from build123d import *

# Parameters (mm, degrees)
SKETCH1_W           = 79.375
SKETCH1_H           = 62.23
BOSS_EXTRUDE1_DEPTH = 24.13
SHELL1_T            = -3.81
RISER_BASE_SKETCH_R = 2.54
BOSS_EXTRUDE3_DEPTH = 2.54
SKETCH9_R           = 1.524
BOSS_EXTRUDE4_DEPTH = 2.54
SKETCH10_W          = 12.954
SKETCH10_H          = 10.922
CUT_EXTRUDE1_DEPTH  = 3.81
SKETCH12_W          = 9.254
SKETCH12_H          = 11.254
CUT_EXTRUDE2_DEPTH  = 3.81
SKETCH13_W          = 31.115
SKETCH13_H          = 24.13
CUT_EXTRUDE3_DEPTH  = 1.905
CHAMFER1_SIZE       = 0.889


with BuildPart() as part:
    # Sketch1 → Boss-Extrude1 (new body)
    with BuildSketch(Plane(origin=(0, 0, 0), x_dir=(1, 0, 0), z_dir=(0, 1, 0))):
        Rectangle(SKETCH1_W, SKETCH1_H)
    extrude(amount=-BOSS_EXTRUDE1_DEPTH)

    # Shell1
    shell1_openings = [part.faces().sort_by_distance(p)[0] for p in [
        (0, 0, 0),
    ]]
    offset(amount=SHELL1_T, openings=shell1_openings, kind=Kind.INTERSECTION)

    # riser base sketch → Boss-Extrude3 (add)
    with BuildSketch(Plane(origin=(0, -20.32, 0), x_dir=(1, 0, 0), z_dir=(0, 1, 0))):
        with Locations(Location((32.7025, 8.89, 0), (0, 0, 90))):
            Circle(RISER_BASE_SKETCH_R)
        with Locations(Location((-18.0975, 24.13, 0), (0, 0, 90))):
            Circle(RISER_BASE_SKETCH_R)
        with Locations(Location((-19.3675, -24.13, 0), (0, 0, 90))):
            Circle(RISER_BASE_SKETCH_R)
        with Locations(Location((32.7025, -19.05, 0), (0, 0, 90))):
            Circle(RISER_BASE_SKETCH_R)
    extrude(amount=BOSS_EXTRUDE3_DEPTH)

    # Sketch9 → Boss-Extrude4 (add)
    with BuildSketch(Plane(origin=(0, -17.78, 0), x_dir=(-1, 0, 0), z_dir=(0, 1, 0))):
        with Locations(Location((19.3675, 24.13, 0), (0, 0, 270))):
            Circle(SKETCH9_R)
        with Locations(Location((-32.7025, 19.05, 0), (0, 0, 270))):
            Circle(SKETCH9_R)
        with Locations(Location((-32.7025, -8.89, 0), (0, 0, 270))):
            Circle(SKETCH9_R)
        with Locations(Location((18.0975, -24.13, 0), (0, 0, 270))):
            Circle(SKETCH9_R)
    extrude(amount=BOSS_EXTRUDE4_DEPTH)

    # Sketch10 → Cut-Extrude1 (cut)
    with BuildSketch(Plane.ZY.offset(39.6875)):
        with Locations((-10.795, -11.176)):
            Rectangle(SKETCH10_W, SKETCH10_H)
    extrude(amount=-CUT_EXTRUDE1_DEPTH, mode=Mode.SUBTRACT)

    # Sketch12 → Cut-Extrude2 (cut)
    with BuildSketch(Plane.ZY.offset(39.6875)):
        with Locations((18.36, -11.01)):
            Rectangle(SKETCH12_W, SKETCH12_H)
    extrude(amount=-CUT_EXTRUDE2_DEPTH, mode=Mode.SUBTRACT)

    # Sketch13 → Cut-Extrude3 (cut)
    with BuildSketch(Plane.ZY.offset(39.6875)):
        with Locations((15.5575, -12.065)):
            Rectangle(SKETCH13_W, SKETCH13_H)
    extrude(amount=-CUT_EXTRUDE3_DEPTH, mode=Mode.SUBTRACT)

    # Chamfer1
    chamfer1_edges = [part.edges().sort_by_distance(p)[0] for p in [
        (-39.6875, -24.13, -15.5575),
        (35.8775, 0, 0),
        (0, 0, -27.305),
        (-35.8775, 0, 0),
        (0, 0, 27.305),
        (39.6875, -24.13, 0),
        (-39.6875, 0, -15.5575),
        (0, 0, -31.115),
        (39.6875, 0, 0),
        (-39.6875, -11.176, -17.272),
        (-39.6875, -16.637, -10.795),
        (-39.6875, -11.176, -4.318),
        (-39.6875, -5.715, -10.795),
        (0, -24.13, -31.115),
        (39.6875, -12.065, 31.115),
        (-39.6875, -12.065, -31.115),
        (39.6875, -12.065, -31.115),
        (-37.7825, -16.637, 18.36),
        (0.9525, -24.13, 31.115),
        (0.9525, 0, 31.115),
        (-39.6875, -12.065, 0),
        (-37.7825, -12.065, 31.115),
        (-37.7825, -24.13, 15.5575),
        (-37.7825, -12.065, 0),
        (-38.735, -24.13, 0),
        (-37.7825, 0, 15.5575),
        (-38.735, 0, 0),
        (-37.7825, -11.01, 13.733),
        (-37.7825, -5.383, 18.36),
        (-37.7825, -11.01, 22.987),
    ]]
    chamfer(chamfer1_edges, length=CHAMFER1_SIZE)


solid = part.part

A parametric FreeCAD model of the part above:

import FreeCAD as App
import Part
import Sketcher
Q = App.Units.Quantity


def edges_at(feature, points):
    """Names of the edges that pass closest to the given points."""
    edges = feature.Shape.Edges
    near = lambda p: min(range(len(edges)), key=lambda i: edges[i].distToShape(Part.Vertex(*p))[0])
    return sorted({f"Edge{near(p) + 1}" for p in points})


def faces_at(feature, points):
    """Names of the faces that lie closest to the given points."""
    faces = feature.Shape.Faces
    near = lambda p: min(range(len(faces)), key=lambda i: faces[i].distToShape(Part.Vertex(*p))[0])
    return sorted({f"Face{near(p) + 1}" for p in points})

doc = App.newDocument("Part")
body = doc.addObject("PartDesign::Body", "Body")

# Sketch on XZ plane
sketch1 = body.newObject("Sketcher::SketchObject", "Sketch")
sketch1.AttachmentSupport = (doc.getObject("XZ_Plane"), [""])
sketch1.MapMode = "FlatFace"
sketch1.addGeometry(Part.LineSegment(App.Vector(-40, -31, 0), App.Vector(-40, 31, 0)), False)
sketch1.addGeometry(Part.LineSegment(App.Vector(-40, 31, 0), App.Vector(40, 31, 0)), False)
sketch1.addGeometry(Part.LineSegment(App.Vector(40, 31, 0), App.Vector(40, -31, 0)), False)
sketch1.addGeometry(Part.LineSegment(App.Vector(40, -31, 0), App.Vector(-40, -31, 0)), False)
sketch1.addConstraint(Sketcher.Constraint("Coincident", 0, 2, 1, 1))
sketch1.addConstraint(Sketcher.Constraint("Coincident", 1, 2, 2, 1))
sketch1.addConstraint(Sketcher.Constraint("Coincident", 2, 2, 3, 1))
sketch1.addConstraint(Sketcher.Constraint("Coincident", 3, 2, 0, 1))
sketch1.addConstraint(Sketcher.Constraint("Vertical", 0))
sketch1.addConstraint(Sketcher.Constraint("Horizontal", 1))
sketch1.addConstraint(Sketcher.Constraint("Vertical", 2))
sketch1.addConstraint(Sketcher.Constraint("Horizontal", 3))
sketch1.addConstraint(Sketcher.Constraint("Symmetric", 0, 2, 2, 2, -1, 1))
sketch1.addConstraint(Sketcher.Constraint("DistanceY", 0, 1, 0, 2, Q("2.45 in")))
sketch1.addConstraint(Sketcher.Constraint("DistanceX", 1, 1, 1, 2, Q("3.125 in")))
pad1 = body.newObject("PartDesign::Pad", "Pad")
pad1.Profile = sketch1
pad1.Length = Q("0.95 in")
doc.recompute()

thickness = body.newObject("PartDesign::Thickness", "Thickness")
thickness.Base = (pad1, faces_at(pad1, [(0, 0, 0)]))
thickness.Value = Q("0.15 in")
thickness.Reversed = True
thickness.Join = "Intersection"

# Sketch on XZ plane
sketch2 = body.newObject("Sketcher::SketchObject", "Sketch001")
sketch2.AttachmentSupport = (doc.getObject("XZ_Plane"), [""])
sketch2.MapMode = "FlatFace"
sketch2.AttachmentOffset = App.Placement(App.Vector(0, 0, 0.8 * 25.4), App.Rotation())
sketch2.addGeometry(Part.Circle(App.Vector(32.7, -8.9, 0), App.Vector(0, 0, 1), 2.5), False)
sketch2.addGeometry(Part.Circle(App.Vector(-18.1, -24.1, 0), App.Vector(0, 0, 1), 2.5), False)
sketch2.addGeometry(Part.Circle(App.Vector(-19.4, 24.1, 0), App.Vector(0, 0, 1), 2.5), False)
sketch2.addGeometry(Part.Circle(App.Vector(32.7, 19.1, 0), App.Vector(0, 0, 1), 2.5), False)
sketch2.addConstraint(Sketcher.Constraint("Equal", 0, 1))
sketch2.addConstraint(Sketcher.Constraint("Equal", 1, 2))
sketch2.addConstraint(Sketcher.Constraint("Equal", 2, 3))
sketch2.addConstraint(Sketcher.Constraint("Vertical", 0, 3, 3, 3))
sketch2.addConstraint(Sketcher.Constraint("Diameter", 0, Q("0.2 in")))
sketch2.addConstraint(Sketcher.Constraint("DistanceX", 1, 3, 0, 3, Q("2 in")))
sketch2.addConstraint(Sketcher.Constraint("DistanceY", 1, 3, 0, 3, Q("0.6 in")))
sketch2.addConstraint(Sketcher.Constraint("DistanceY", 1, 3, 2, 3, Q("1.9 in")))
sketch2.addConstraint(Sketcher.Constraint("DistanceY", 0, 3, 3, 3, Q("1.1 in")))
sketch2.addConstraint(Sketcher.Constraint("DistanceY", 0, 3, -1, 1, Q("0.35 in")))
sketch2.addConstraint(Sketcher.Constraint("DistanceX", 2, 3, 1, 3, Q("0.05 in")))
sketch2.addConstraint(Sketcher.Constraint("DistanceX", -1, 1, 0, 3, Q("1.2875 in")))
pad2 = body.newObject("PartDesign::Pad", "Pad001")
pad2.Profile = sketch2
pad2.Length = Q("0.1 in")
pad2.Reversed = True

# Sketch on XZ plane
sketch3 = body.newObject("Sketcher::SketchObject", "Sketch002")
sketch3.AttachmentSupport = (doc.getObject("XZ_Plane"), [""])
sketch3.MapMode = "FlatFace"
sketch3.AttachmentOffset = App.Placement(App.Vector(0, 0, 0.7 * 25.4), App.Rotation())
sketch3.addGeometry(Part.Circle(App.Vector(-19.4, 24.1, 0), App.Vector(0, 0, 1), 1.5), False)
sketch3.addGeometry(Part.Circle(App.Vector(32.7, 19.1, 0), App.Vector(0, 0, 1), 1.5), False)
sketch3.addGeometry(Part.Circle(App.Vector(32.7, -8.9, 0), App.Vector(0, 0, 1), 1.5), False)
sketch3.addGeometry(Part.Circle(App.Vector(-18.1, -24.1, 0), App.Vector(0, 0, 1), 1.5), False)
sketch3.addConstraint(Sketcher.Constraint("Equal", 0, 1))
sketch3.addConstraint(Sketcher.Constraint("Equal", 1, 2))
sketch3.addConstraint(Sketcher.Constraint("Equal", 2, 3))
sketch3.addConstraint(Sketcher.Constraint("Vertical", 1, 3, 2, 3))
sketch3.addConstraint(Sketcher.Constraint("Diameter", 0, Q("0.12 in")))
sketch3.addConstraint(Sketcher.Constraint("DistanceX", 3, 3, 2, 3, Q("2 in")))
sketch3.addConstraint(Sketcher.Constraint("DistanceY", 1, 3, 0, 3, Q("0.2 in")))
sketch3.addConstraint(Sketcher.Constraint("DistanceY", 2, 3, 1, 3, Q("1.1 in")))
sketch3.addConstraint(Sketcher.Constraint("DistanceY", 3, 3, 0, 3, Q("1.9 in")))
sketch3.addConstraint(Sketcher.Constraint("DistanceY", -1, 1, 0, 3, Q("0.95 in")))
sketch3.addConstraint(Sketcher.Constraint("DistanceX", 0, 3, 1, 3, Q("2.05 in")))
sketch3.addConstraint(Sketcher.Constraint("DistanceX", 0, 3, -1, 1, Q("0.7625 in")))
pad3 = body.newObject("PartDesign::Pad", "Pad002")
pad3.Profile = sketch3
pad3.Length = Q("0.1 in")
pad3.Reversed = True

# Sketch on YZ plane
sketch4 = body.newObject("Sketcher::SketchObject", "Sketch003")
sketch4.AttachmentSupport = (doc.getObject("YZ_Plane"), [""])
sketch4.MapMode = "FlatFace"
sketch4.AttachmentOffset = App.Placement(App.Vector(0, 0, -1.5625 * 25.4), App.Rotation())
sketch4.addGeometry(Part.LineSegment(App.Vector(-6, -17, 0), App.Vector(-17, -17, 0)), False)
sketch4.addGeometry(Part.LineSegment(App.Vector(-17, -17, 0), App.Vector(-17, -4, 0)), False)
sketch4.addGeometry(Part.LineSegment(App.Vector(-17, -4, 0), App.Vector(-6, -4, 0)), False)
sketch4.addGeometry(Part.LineSegment(App.Vector(-6, -4, 0), App.Vector(-6, -17, 0)), False)
sketch4.addConstraint(Sketcher.Constraint("Coincident", 0, 2, 1, 1))
sketch4.addConstraint(Sketcher.Constraint("Coincident", 1, 2, 2, 1))
sketch4.addConstraint(Sketcher.Constraint("Coincident", 2, 2, 3, 1))
sketch4.addConstraint(Sketcher.Constraint("Coincident", 3, 2, 0, 1))
sketch4.addConstraint(Sketcher.Constraint("Horizontal", 0))
sketch4.addConstraint(Sketcher.Constraint("Vertical", 1))
sketch4.addConstraint(Sketcher.Constraint("Horizontal", 2))
sketch4.addConstraint(Sketcher.Constraint("Vertical", 3))
sketch4.addConstraint(Sketcher.Constraint("DistanceX", 0, 2, 0, 1, Q("0.43 in")))
sketch4.addConstraint(Sketcher.Constraint("DistanceY", 1, 1, 1, 2, Q("0.51 in")))
sketch4.addConstraint(Sketcher.Constraint("DistanceY", 0, 2, -1, 1, Q("0.68 in")))
sketch4.addConstraint(Sketcher.Constraint("DistanceX", 0, 2, -1, 1, Q("0.655 in")))
pocket1 = body.newObject("PartDesign::Pocket", "Pocket")
pocket1.Profile = sketch4
pocket1.Length = Q("0.15 in")
pocket1.Reversed = True

# Sketch on YZ plane
sketch5 = body.newObject("Sketcher::SketchObject", "Sketch004")
sketch5.AttachmentSupport = (doc.getObject("YZ_Plane"), [""])
sketch5.MapMode = "FlatFace"
sketch5.AttachmentOffset = App.Placement(App.Vector(0, 0, -1.5625 * 25.4), App.Rotation())
sketch5.addGeometry(Part.LineSegment(App.Vector(-5, 14, 0), App.Vector(-17, 14, 0)), False)
sketch5.addGeometry(Part.LineSegment(App.Vector(-17, 14, 0), App.Vector(-17, 23, 0)), False)
sketch5.addGeometry(Part.LineSegment(App.Vector(-17, 23, 0), App.Vector(-5, 23, 0)), False)
sketch5.addGeometry(Part.LineSegment(App.Vector(-5, 23, 0), App.Vector(-5, 14, 0)), False)
sketch5.addConstraint(Sketcher.Constraint("Coincident", 0, 2, 1, 1))
sketch5.addConstraint(Sketcher.Constraint("Coincident", 1, 2, 2, 1))
sketch5.addConstraint(Sketcher.Constraint("Coincident", 2, 2, 3, 1))
sketch5.addConstraint(Sketcher.Constraint("Coincident", 3, 2, 0, 1))
sketch5.addConstraint(Sketcher.Constraint("Horizontal", 0))
sketch5.addConstraint(Sketcher.Constraint("Vertical", 1))
sketch5.addConstraint(Sketcher.Constraint("Horizontal", 2))
sketch5.addConstraint(Sketcher.Constraint("Vertical", 3))
sketch5.addConstraint(Sketcher.Constraint("DistanceX", 0, 2, -1, 1, Q("0.655 in")))
sketch5.addConstraint(Sketcher.Constraint("DistanceY", -1, 1, 1, 2, Q("0.905 in")))
sketch5.addConstraint(Sketcher.Constraint("DistanceX", 0, 2, 0, 1, Q("11.254 mm")))
sketch5.addConstraint(Sketcher.Constraint("DistanceY", 1, 1, 1, 2, Q("9.254 mm")))
pocket2 = body.newObject("PartDesign::Pocket", "Pocket001")
pocket2.Profile = sketch5
pocket2.Length = Q("0.15 in")
pocket2.Reversed = True

# Sketch on YZ plane
sketch6 = body.newObject("Sketcher::SketchObject", "Sketch005")
sketch6.AttachmentSupport = (doc.getObject("YZ_Plane"), [""])
sketch6.MapMode = "FlatFace"
sketch6.AttachmentOffset = App.Placement(App.Vector(0, 0, -1.5625 * 25.4), App.Rotation())
sketch6.addGeometry(Part.LineSegment(App.Vector(0, 0, 0), App.Vector(-24, 0, 0)), False)
sketch6.addGeometry(Part.LineSegment(App.Vector(-24, 0, 0), App.Vector(-24, 31, 0)), False)
sketch6.addGeometry(Part.LineSegment(App.Vector(-24, 31, 0), App.Vector(0, 31, 0)), False)
sketch6.addGeometry(Part.LineSegment(App.Vector(0, 31, 0), App.Vector(0, 0, 0)), False)
sketch6.addConstraint(Sketcher.Constraint("Coincident", 0, 2, 1, 1))
sketch6.addConstraint(Sketcher.Constraint("Coincident", 1, 2, 2, 1))
sketch6.addConstraint(Sketcher.Constraint("Coincident", 2, 2, 3, 1))
sketch6.addConstraint(Sketcher.Constraint("Coincident", 3, 2, 0, 1))
sketch6.addConstraint(Sketcher.Constraint("Horizontal", 0))
sketch6.addConstraint(Sketcher.Constraint("Vertical", 1))
sketch6.addConstraint(Sketcher.Constraint("Horizontal", 2))
sketch6.addConstraint(Sketcher.Constraint("Vertical", 3))
sketch6.addConstraint(Sketcher.Constraint("Coincident", 3, 2, -1, 1))
sketch6.addConstraint(Sketcher.Constraint("DistanceX", 0, 2, 0, 1, Q("0.95 in")))
sketch6.addConstraint(Sketcher.Constraint("DistanceY", 1, 1, 1, 2, Q("1.225 in")))
pocket3 = body.newObject("PartDesign::Pocket", "Pocket002")
pocket3.Profile = sketch6
pocket3.Length = Q("0.075 in")
pocket3.Reversed = True
doc.recompute()

chamfer = body.newObject("PartDesign::Chamfer", "Chamfer")
chamfer.Base = (pocket3, edges_at(pocket3, [
    (-39.688, -24.13, -15.557),
    (35.877, 0, 0),
    (0, 0, -27.305),
    (-35.877, 0, 0),
    (0, 0, 27.305),
    (39.688, -24.13, 0),
    (-39.688, 0, -15.557),
    (0, 0, -31.115),
    (39.688, 0, 0),
    (-39.688, -11.176, -17.272),
    (-39.688, -16.637, -10.795),
    (-39.688, -11.176, -4.318),
    (-39.688, -5.715, -10.795),
    (0, -24.13, -31.115),
    (39.688, -12.065, 31.115),
    (-39.688, -12.065, -31.115),
    (39.688, -12.065, -31.115),
    (-37.782, -16.637, 18.36),
    (0.953, -24.13, 31.115),
    (0.953, 0, 31.115),
    (-39.688, -12.065, 0),
    (-37.782, -12.065, 31.115),
    (-37.782, -24.13, 15.557),
    (-37.782, -12.065, 0),
    (-38.735, -24.13, 0),
    (-37.782, 0, 15.557),
    (-38.735, 0, 0),
    (-37.782, -11.01, 13.733),
    (-37.782, -5.383, 18.36),
    (-37.782, -11.01, 22.987),
]))
chamfer.Size = Q("0.035 in")

doc.recompute()
